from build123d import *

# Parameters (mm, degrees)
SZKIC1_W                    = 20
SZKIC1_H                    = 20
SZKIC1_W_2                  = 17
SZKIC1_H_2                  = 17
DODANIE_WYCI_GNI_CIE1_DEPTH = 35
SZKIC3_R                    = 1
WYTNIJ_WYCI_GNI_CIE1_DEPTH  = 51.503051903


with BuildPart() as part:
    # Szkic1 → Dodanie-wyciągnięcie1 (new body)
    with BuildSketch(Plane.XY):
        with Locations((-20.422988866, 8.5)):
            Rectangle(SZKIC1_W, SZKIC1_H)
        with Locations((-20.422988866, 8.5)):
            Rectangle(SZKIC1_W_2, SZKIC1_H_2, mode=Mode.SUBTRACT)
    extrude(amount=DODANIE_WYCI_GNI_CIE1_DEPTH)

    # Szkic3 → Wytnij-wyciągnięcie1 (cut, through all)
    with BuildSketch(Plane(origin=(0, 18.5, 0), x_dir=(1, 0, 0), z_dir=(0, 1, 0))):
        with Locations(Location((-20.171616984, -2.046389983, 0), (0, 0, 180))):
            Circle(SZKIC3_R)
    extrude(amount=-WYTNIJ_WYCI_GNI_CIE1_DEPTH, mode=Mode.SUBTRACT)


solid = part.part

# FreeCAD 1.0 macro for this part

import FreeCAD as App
import Part
import Sketcher

V = App.Vector


def add_polygon(sketch, points):
    """Adds a closed chain of lines whose ends are joined by coincident constraints."""
    first, n = sketch.GeometryCount, len(points)
    for a, b in zip(points, points[1:] + points[:1]):
        sketch.addGeometry(Part.LineSegment(App.Vector(*a, 0), App.Vector(*b, 0)), False)
    for i in range(n):
        sketch.addConstraint(Sketcher.Constraint("Coincident", first + i, 2, first + (i + 1) % n, 1))

doc = App.newDocument("Part")
params = doc.addObject("Spreadsheet::Sheet", "Params")
for row, (alias, value) in enumerate([
    ("sketch1_width", "20 mm"),
    ("sketch1_width2", "17 mm"),
    ("pad1_length", "35 mm"),
    ("sketch2_diameter", "2 mm"),
], start=1):
    params.set(f"A{row}", alias)
    params.set(f"B{row}", "=" + value)
    params.setAlias(f"B{row}", alias)

body = doc.addObject("PartDesign::Body", "Body")

# Sketch on XY plane
sketch1 = body.newObject("Sketcher::SketchObject", "Sketch")
sketch1.AttachmentSupport = (doc.getObject("XY_Plane"), [""])
sketch1.MapMode = "FlatFace"
add_polygon(sketch1, [(-30, 18), (-30, -2), (-10, -2), (-10, 18)])  # lines 0-3
add_polygon(sketch1, [(-12, 0), (-29, 0), (-29, 17), (-12, 17)])  # lines 4-7
sketch1.addConstraint(Sketcher.Constraint("Vertical", 0))
sketch1.addConstraint(Sketcher.Constraint("Horizontal", 1))
sketch1.addConstraint(Sketcher.Constraint("Vertical", 2))
sketch1.addConstraint(Sketcher.Constraint("Horizontal", 3))
sketch1.addConstraint(Sketcher.Constraint("Horizontal", 4))
sketch1.addConstraint(Sketcher.Constraint("Vertical", 5))
sketch1.addConstraint(Sketcher.Constraint("Horizontal", 6))
sketch1.addConstraint(Sketcher.Constraint("Vertical", 7))
sketch1.addConstraint(Sketcher.Constraint("PointOnObject", 4, 2, -1))
sketch1.addConstraint(Sketcher.Constraint("Equal", 3, 0))
sketch1.addConstraint(Sketcher.Constraint("Equal", 6, 5))
sketch1.addConstraint(Sketcher.Constraint("DistanceX", 1, 1, 1, 2, 20.0))
sketch1.addConstraint(Sketcher.Constraint("DistanceX", 4, 2, 4, 1, 17.0))
sketch1.addConstraint(Sketcher.Constraint("DistanceY", 0, 2, -1, 1, 1.5))
sketch1.addConstraint(Sketcher.Constraint("DistanceX", 0, 2, 4, 2, 1.5))
sketch1.addConstraint(Sketcher.Constraint("DistanceX", 0, 2, -1, 1, 30.422989))
sketch1.setExpression("Constraints[19]", "Params.sketch1_width")
sketch1.setExpression("Constraints[20]", "Params.sketch1_width2")
pad1 = body.newObject("PartDesign::Pad", "Pad")
pad1.Profile = sketch1
pad1.setExpression("Length", "Params.pad1_length")

# Sketch on XZ plane
sketch2 = body.newObject("Sketcher::SketchObject", "Sketch001")
sketch2.AttachmentSupport = (doc.getObject("XZ_Plane"), [""])
sketch2.MapMode = "FlatFace"
sketch2.AttachmentOffset = App.Placement(V(0, 0, -18.5), App.Rotation())
sketch2.addGeometry(Part.Circle(V(-20.2, 2, 0), V(0, 0, 1), 1), False)
sketch2.addConstraint(Sketcher.Constraint("Diameter", 0, 2.0))
sketch2.addConstraint(Sketcher.Constraint("DistanceY", -1, 1, 0, 3, 2.04639))
sketch2.addConstraint(Sketcher.Constraint("DistanceX", 0, 3, -1, 1, 20.171617))
sketch2.setExpression("Constraints[0]", "Params.sketch2_diameter")
pocket1 = body.newObject("PartDesign::Pocket", "Pocket")
pocket1.Profile = sketch2
pocket1.Type = "ThroughAll"
pocket1.Reversed = True

doc.recompute()
